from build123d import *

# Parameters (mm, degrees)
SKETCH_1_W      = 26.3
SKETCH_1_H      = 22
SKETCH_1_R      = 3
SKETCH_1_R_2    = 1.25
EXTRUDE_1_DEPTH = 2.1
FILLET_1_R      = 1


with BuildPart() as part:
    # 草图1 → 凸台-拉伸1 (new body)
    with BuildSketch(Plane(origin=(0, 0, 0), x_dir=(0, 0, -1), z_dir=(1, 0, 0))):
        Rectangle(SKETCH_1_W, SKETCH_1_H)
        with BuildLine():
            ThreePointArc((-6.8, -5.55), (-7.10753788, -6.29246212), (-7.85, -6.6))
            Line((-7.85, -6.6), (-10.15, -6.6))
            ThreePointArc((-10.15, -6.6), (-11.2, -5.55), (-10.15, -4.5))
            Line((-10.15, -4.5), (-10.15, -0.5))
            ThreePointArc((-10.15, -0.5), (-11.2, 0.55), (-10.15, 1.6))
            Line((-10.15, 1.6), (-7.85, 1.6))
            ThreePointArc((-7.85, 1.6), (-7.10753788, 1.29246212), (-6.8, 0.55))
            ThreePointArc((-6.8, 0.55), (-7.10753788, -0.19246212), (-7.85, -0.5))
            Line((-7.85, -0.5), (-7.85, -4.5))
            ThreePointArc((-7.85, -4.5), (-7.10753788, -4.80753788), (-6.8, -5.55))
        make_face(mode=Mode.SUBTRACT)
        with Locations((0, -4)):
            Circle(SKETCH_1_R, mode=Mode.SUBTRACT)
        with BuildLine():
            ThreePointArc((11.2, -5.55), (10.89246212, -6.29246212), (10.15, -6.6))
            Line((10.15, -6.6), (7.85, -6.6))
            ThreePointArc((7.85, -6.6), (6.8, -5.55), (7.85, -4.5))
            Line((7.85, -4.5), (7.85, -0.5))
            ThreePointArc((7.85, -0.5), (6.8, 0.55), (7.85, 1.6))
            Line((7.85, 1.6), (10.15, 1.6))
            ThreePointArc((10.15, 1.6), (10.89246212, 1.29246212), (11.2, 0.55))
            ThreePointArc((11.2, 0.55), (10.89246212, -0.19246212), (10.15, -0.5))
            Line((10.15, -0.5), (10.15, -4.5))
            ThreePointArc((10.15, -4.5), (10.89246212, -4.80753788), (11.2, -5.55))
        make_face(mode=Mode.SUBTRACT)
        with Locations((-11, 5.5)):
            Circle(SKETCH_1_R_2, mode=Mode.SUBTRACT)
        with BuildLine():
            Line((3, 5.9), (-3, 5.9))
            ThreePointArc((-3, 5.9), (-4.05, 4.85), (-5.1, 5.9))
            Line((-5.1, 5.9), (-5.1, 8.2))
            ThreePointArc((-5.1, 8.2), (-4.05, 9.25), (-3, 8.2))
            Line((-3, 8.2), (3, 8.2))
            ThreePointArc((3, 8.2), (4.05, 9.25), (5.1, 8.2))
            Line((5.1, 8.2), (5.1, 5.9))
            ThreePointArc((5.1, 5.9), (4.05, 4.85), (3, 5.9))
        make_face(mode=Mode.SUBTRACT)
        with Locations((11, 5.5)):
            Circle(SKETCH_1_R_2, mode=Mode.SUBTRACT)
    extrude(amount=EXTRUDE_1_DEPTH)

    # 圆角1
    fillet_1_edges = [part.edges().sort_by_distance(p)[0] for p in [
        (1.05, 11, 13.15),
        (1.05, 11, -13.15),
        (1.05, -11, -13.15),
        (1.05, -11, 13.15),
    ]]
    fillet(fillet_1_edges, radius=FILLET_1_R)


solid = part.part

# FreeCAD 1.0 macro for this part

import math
import FreeCAD as App
import Part
import Sketcher


def edges_at(feature, points):
    """Names of the edges that pass closest to the given points."""
    edges = feature.Shape.Edges
    near = lambda p: min(range(len(edges)), key=lambda i: edges[i].distToShape(Part.Vertex(*p))[0])
    return sorted({f"Edge{near(p) + 1}" for p in points})

doc = App.newDocument("Part")
body = doc.addObject("PartDesign::Body", "Body")

# Sketch on YZ plane
sketch1 = doc.addObject("Sketcher::SketchObject", "Sketch")
body.addObject(sketch1)
sketch1.AttachmentSupport = (doc.YZ_Plane, [""])
sketch1.MapMode = "FlatFace"
sketch1.addGeometry([
    Part.LineSegment(App.Vector(11, 13.15, 0), App.Vector(-11, 13.15, 0)),  # 0
    Part.LineSegment(App.Vector(-11, 13.15, 0), App.Vector(-11, -13.15, 0)),  # 1
    Part.LineSegment(App.Vector(-11, -13.15, 0), App.Vector(11, -13.15, 0)),  # 2
    Part.LineSegment(App.Vector(11, -13.15, 0), App.Vector(11, 13.15, 0)),  # 3
    Part.Circle(App.Vector(-4, 0, 0), App.Vector(0, 0, 1), 3),  # 4
    Part.ArcOfCircle(Part.Circle(App.Vector(-5.55, 7.85, 0), App.Vector(0, 0, 1), 1.05), math.radians(-90), math.radians(0)),  # 5
    Part.ArcOfCircle(Part.Circle(App.Vector(-5.55, 7.85, 0), App.Vector(0, 0, 1), 1.05), math.radians(-180), math.radians(-90)),  # 6
    Part.LineSegment(App.Vector(-6.6, 7.85, 0), App.Vector(-6.6, 10.15, 0)),  # 7
    Part.ArcOfCircle(Part.Circle(App.Vector(-5.55, 10.15, 0), App.Vector(0, 0, 1), 1.05), math.radians(0), math.radians(180)),  # 8
    Part.LineSegment(App.Vector(-4.5, 10.15, 0), App.Vector(-0.5, 10.15, 0)),  # 9
    Part.ArcOfCircle(Part.Circle(App.Vector(0.55, 10.15, 0), App.Vector(0, 0, 1), 1.05), math.radians(0), math.radians(180)),  # 10
    Part.LineSegment(App.Vector(1.6, 10.15, 0), App.Vector(1.6, 7.85, 0)),  # 11
    Part.ArcOfCircle(Part.Circle(App.Vector(0.55, 7.85, 0), App.Vector(0, 0, 1), 1.05), math.radians(-90), math.radians(0)),  # 12
    Part.ArcOfCircle(Part.Circle(App.Vector(0.55, 7.85, 0), App.Vector(0, 0, 1), 1.05), math.radians(-180), math.radians(-90)),  # 13
    Part.LineSegment(App.Vector(-0.5, 7.85, 0), App.Vector(-4.5, 7.85, 0)),  # 14
    Part.ArcOfCircle(Part.Circle(App.Vector(-5.55, -10.15, 0), App.Vector(0, 0, 1), 1.05), math.radians(-90), math.radians(0)),  # 15
    Part.ArcOfCircle(Part.Circle(App.Vector(-5.55, -10.15, 0), App.Vector(0, 0, 1), 1.05), math.radians(-180), math.radians(-90)),  # 16
    Part.LineSegment(App.Vector(-6.6, -10.15, 0), App.Vector(-6.6, -7.85, 0)),  # 17
    Part.ArcOfCircle(Part.Circle(App.Vector(-5.55, -7.85, 0), App.Vector(0, 0, 1), 1.05), math.radians(0), math.radians(180)),  # 18
    Part.LineSegment(App.Vector(-4.5, -7.85, 0), App.Vector(-0.5, -7.85, 0)),  # 19
    Part.ArcOfCircle(Part.Circle(App.Vector(0.55, -7.85, 0), App.Vector(0, 0, 1), 1.05), math.radians(0), math.radians(180)),  # 20
    Part.LineSegment(App.Vector(1.6, -7.85, 0), App.Vector(1.6, -10.15, 0)),  # 21
    Part.ArcOfCircle(Part.Circle(App.Vector(0.55, -10.15, 0), App.Vector(0, 0, 1), 1.05), math.radians(-90), math.radians(0)),  # 22
    Part.ArcOfCircle(Part.Circle(App.Vector(0.55, -10.15, 0), App.Vector(0, 0, 1), 1.05), math.radians(-180), math.radians(-90)),  # 23
    Part.LineSegment(App.Vector(-0.5, -10.15, 0), App.Vector(-4.5, -10.15, 0)),  # 24
    Part.Circle(App.Vector(5.5, 11, 0), App.Vector(0, 0, 1), 1.25),  # 25
    Part.ArcOfCircle(Part.Circle(App.Vector(5.9, -4.05, 0), App.Vector(0, 0, 1), 1.05), math.radians(90), math.radians(270)),  # 26
    Part.LineSegment(App.Vector(5.9, -3, 0), App.Vector(5.9, 3, 0)),  # 27
    Part.ArcOfCircle(Part.Circle(App.Vector(5.9, 4.05, 0), App.Vector(0, 0, 1), 1.05), math.radians(90), math.radians(270)),  # 28
    Part.LineSegment(App.Vector(5.9, 5.1, 0), App.Vector(8.2, 5.1, 0)),  # 29
    Part.ArcOfCircle(Part.Circle(App.Vector(8.2, 4.05, 0), App.Vector(0, 0, 1), 1.05), math.radians(-90), math.radians(90)),  # 30
    Part.LineSegment(App.Vector(8.2, 3, 0), App.Vector(8.2, -3, 0)),  # 31
    Part.ArcOfCircle(Part.Circle(App.Vector(8.2, -4.05, 0), App.Vector(0, 0, 1), 1.05), math.radians(-90), math.radians(90)),  # 32
    Part.LineSegment(App.Vector(8.2, -5.1, 0), App.Vector(5.9, -5.1, 0)),  # 33
    Part.Circle(App.Vector(5.5, -11, 0), App.Vector(0, 0, 1), 1.25),  # 34
], False)
sketch1.addConstraint([
    Sketcher.Constraint("Coincident", 0, 2, 1, 1),
    Sketcher.Constraint("Coincident", 1, 2, 2, 1),
    Sketcher.Constraint("Coincident", 2, 2, 3, 1),
    Sketcher.Constraint("Coincident", 3, 2, 0, 1),
    Sketcher.Constraint("Tangent", 5, 1, 6, 2),
    Sketcher.Constraint("Tangent", 6, 1, 7, 1),
    Sketcher.Constraint("Tangent", 7, 2, 8, 2),
    Sketcher.Constraint("Coincident", 8, 1, 9, 1),
    Sketcher.Constraint("Coincident", 9, 2, 10, 2),
    Sketcher.Constraint("Tangent", 10, 1, 11, 1),
    Sketcher.Constraint("Tangent", 11, 2, 12, 2),
    Sketcher.Constraint("Tangent", 12, 1, 13, 2),
    Sketcher.Constraint("Coincident", 13, 1, 14, 1),
    Sketcher.Constraint("Coincident", 14, 2, 5, 2),
    Sketcher.Constraint("Tangent", 15, 1, 16, 2),
    Sketcher.Constraint("Tangent", 16, 1, 17, 1),
    Sketcher.Constraint("Tangent", 17, 2, 18, 2),
    Sketcher.Constraint("Coincident", 18, 1, 19, 1),
    Sketcher.Constraint("Coincident", 19, 2, 20, 2),
    Sketcher.Constraint("Tangent", 20, 1, 21, 1),
    Sketcher.Constraint("Tangent", 21, 2, 22, 2),
    Sketcher.Constraint("Tangent", 22, 1, 23, 2),
    Sketcher.Constraint("Coincident", 23, 1, 24, 1),
    Sketcher.Constraint("Coincident", 24, 2, 15, 2),
    Sketcher.Constraint("Coincident", 26, 1, 27, 1),
    Sketcher.Constraint("Coincident", 27, 2, 28, 2),
    Sketcher.Constraint("Tangent", 28, 1, 29, 1),
    Sketcher.Constraint("Tangent", 29, 2, 30, 2),
    Sketcher.Constraint("Coincident", 30, 1, 31, 1),
    Sketcher.Constraint("Coincident", 31, 2, 32, 2),
    Sketcher.Constraint("Tangent", 32, 1, 33, 1),
    Sketcher.Constraint("Tangent", 33, 2, 26, 2),
    Sketcher.Constraint("Horizontal", 0),
    Sketcher.Constraint("Vertical", 1),
    Sketcher.Constraint("Horizontal", 2),
    Sketcher.Constraint("Vertical", 3),
    Sketcher.Constraint("Vertical", 7),
    Sketcher.Constraint("Horizontal", 9),
    Sketcher.Constraint("Vertical", 11),
    Sketcher.Constraint("Horizontal", 14),
    Sketcher.Constraint("Vertical", 17),
    Sketcher.Constraint("Horizontal", 19),
    Sketcher.Constraint("Vertical", 21),
    Sketcher.Constraint("Horizontal", 24),
    Sketcher.Constraint("Vertical", 27),
    Sketcher.Constraint("Horizontal", 29),
    Sketcher.Constraint("Vertical", 31),
    Sketcher.Constraint("Horizontal", 33),
    Sketcher.Constraint("Equal", 5, 6),
    Sketcher.Constraint("Equal", 6, 8),
    Sketcher.Constraint("Equal", 8, 10),
    Sketcher.Constraint("Equal", 10, 12),
    Sketcher.Constraint("Equal", 12, 13),
    Sketcher.Constraint("Equal", 13, 15),
    Sketcher.Constraint("Equal", 15, 16),
    Sketcher.Constraint("Equal", 16, 18),
    Sketcher.Constraint("Equal", 18, 20),
    Sketcher.Constraint("Equal", 20, 22),
    Sketcher.Constraint("Equal", 22, 23),
    Sketcher.Constraint("Equal", 23, 26),
    Sketcher.Constraint("Equal", 26, 28),
    Sketcher.Constraint("Equal", 28, 30),
    Sketcher.Constraint("Equal", 30, 32),
    Sketcher.Constraint("Equal", 25, 34),
    Sketcher.Constraint("Symmetric", 0, 2, 2, 2, -1, 1),
    Sketcher.Constraint("Symmetric", 8, 3, 15, 3, -1),
    Sketcher.Constraint("Symmetric", 12, 3, 20, 3, -1),
    Sketcher.Constraint("Symmetric", 26, 3, 28, 3, -1),
    Sketcher.Constraint("Symmetric", 25, 3, 34, 3, -1),
    Sketcher.Constraint("PointOnObject", 4, 3, -1),
    Sketcher.Constraint("Horizontal", 8, 3, 10, 3),
    Sketcher.Constraint("Horizontal", 6, 3, 12, 3),
    Sketcher.Constraint("Horizontal", 18, 3, 20, 3),
    Sketcher.Constraint("Horizontal", 16, 3, 22, 3),
    Sketcher.Constraint("Horizontal", 7, 2, 8, 1),
    Sketcher.Constraint("Horizontal", 11, 2, 13, 1),
    Sketcher.Constraint("Horizontal", 17, 2, 18, 1),
    Sketcher.Constraint("Horizontal", 21, 2, 23, 1),
    Sketcher.Constraint("Vertical", 30, 3, 32, 3),
    Sketcher.Constraint("Vertical", 18, 3, 5, 1),
    Sketcher.Constraint("Vertical", 23, 3, 12, 1),
    Sketcher.Constraint("Vertical", 5, 1, 15, 1),
    Sketcher.Constraint("Vertical", 12, 1, 22, 1),
    Sketcher.Constraint("Vertical", 28, 3, 26, 1),
    Sketcher.Constraint("Vertical", 29, 2, 30, 1),
    Sketcher.Constraint("Equal", 33, 7),
    Sketcher.Constraint("Diameter", 4, 6.0),
    Sketcher.Constraint("Diameter", 25, 2.5),
    Sketcher.Constraint("DistanceX", 0, 2, 0, 1, 22.0),
    Sketcher.Constraint("DistanceX", 9, 1, 9, 2, 4.0),
    Sketcher.Constraint("DistanceY", 27, 1, 27, 2, 6.0),
    Sketcher.Constraint("Radius", 5, 1.05),
    Sketcher.Constraint("DistanceX", 29, 1, 29, 2, 2.3),
    Sketcher.Constraint("DistanceY", 1, 2, 1, 1, 26.3),
    Sketcher.Constraint("DistanceX", 4, 3, -1, 1, 4.0),
    Sketcher.Constraint("DistanceY", -1, 1, 25, 3, 11.0),
    Sketcher.Constraint("DistanceY", 15, 3, 5, 3, 18.0),
    Sketcher.Constraint("DistanceX", -1, 1, 25, 3, 5.5),
    Sketcher.Constraint("DistanceX", -1, 1, 26, 3, 5.9),
    Sketcher.Constraint("DistanceX", 6, 1, -1, 1, 6.6),
])
pad1 = doc.addObject("PartDesign::Pad", "Pad")
body.addObject(pad1)
pad1.Profile = sketch1
pad1.Length = 2.1
doc.recompute()

fillet = doc.addObject("PartDesign::Fillet", "Fillet")
body.addObject(fillet)
fillet.Base = (pad1, edges_at(pad1, [
    (1.05, 11, 13.15),
    (1.05, 11, -13.15),
    (1.05, -11, -13.15),
    (1.05, -11, 13.15),
]))
fillet.Radius = 1

doc.recompute()
